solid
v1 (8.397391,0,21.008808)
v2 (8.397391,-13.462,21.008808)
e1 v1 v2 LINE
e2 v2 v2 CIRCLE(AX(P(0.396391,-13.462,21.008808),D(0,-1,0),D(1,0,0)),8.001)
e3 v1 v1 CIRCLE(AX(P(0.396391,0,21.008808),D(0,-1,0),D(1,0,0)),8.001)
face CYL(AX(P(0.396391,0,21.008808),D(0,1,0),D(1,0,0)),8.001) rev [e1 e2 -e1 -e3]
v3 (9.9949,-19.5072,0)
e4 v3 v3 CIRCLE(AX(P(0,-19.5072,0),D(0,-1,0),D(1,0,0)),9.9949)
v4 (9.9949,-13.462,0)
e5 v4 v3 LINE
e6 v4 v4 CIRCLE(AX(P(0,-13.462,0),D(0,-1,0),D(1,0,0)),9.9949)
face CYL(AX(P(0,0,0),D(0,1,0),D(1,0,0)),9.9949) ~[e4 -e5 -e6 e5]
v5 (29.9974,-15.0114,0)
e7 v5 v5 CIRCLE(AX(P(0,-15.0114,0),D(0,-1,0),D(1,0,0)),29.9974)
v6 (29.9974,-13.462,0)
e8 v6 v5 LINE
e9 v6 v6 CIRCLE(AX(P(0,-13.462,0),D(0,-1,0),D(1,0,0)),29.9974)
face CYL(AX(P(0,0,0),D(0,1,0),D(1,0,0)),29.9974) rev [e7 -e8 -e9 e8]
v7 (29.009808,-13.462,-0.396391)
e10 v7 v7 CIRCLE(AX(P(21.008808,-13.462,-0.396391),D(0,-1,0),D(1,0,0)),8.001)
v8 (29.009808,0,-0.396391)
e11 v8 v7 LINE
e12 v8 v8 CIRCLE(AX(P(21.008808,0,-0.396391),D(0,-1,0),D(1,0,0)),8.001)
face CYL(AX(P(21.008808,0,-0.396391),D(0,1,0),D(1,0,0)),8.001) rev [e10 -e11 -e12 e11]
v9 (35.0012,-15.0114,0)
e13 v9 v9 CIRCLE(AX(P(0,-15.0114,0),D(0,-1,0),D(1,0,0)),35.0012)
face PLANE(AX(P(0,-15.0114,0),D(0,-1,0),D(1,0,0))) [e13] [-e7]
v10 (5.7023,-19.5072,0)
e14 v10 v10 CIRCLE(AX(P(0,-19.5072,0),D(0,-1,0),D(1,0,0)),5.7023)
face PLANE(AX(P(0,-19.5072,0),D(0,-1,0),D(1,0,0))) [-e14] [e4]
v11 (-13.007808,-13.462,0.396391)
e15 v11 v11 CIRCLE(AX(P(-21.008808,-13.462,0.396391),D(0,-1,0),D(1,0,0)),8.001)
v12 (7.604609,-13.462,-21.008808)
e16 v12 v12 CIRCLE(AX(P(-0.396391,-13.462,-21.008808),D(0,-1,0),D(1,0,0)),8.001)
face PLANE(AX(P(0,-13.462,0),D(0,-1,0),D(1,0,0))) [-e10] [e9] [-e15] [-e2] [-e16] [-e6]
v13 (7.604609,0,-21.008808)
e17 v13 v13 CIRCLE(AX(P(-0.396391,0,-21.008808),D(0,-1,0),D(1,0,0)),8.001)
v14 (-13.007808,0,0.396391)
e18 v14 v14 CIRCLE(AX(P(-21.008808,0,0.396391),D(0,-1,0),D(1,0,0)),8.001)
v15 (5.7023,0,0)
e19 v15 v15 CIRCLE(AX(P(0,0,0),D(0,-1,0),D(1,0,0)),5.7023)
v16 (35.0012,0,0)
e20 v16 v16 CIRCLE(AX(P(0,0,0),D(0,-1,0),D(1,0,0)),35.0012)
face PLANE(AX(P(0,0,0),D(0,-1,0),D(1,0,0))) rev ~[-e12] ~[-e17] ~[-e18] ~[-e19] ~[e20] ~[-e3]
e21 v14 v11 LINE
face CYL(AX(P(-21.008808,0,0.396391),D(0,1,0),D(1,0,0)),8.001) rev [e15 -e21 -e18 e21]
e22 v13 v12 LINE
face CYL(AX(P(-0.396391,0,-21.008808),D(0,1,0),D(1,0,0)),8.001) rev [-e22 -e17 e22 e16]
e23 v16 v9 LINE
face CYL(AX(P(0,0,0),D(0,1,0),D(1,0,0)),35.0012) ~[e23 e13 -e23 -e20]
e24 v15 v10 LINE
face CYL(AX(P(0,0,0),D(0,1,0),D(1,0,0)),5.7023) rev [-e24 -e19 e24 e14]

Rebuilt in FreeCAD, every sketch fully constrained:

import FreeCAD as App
import Part
import Sketcher
Q = App.Units.Quantity

doc = App.newDocument("Part")
body = doc.addObject("PartDesign::Body", "Body")

# Sketch on XZ plane
sketch1 = body.newObject("Sketcher::SketchObject", "Sketch")
sketch1.AttachmentSupport = (doc.getObject("XZ_Plane"), [""])
sketch1.MapMode = "FlatFace"
sketch1.addGeometry([
    Part.Circle(App.Vector(0, 0, 0), App.Vector(0, 0, 1), 9.9949),
    Part.Circle(App.Vector(0, 0, 0), App.Vector(0, 0, 1), 5.7023),
], False)
sketch1.addConstraint([
    Sketcher.Constraint("Coincident", 0, 3, -1, 1),
    Sketcher.Constraint("Coincident", 1, 3, -1, 1),
    Sketcher.Constraint("Diameter", 0, Q("0.787 in")),
    Sketcher.Constraint("Diameter", 1, Q("0.449 in")),
])
pad1 = body.newObject("PartDesign::Pad", "Pad")
pad1.Profile = sketch1
pad1.Length = Q("0.768 in")

# Sketch on XZ plane
sketch2 = body.newObject("Sketcher::SketchObject", "Sketch001")
sketch2.AttachmentSupport = (doc.getObject("XZ_Plane"), [""])
sketch2.MapMode = "FlatFace"
sketch2.addGeometry([
    Part.Circle(App.Vector(0, 0, 0), App.Vector(0, 0, 1), 29.9974),  # 0
    Part.Circle(App.Vector(-0.396391, -21.008808, 0), App.Vector(0, 0, 1), 8.001),  # 1
    Part.Circle(App.Vector(21.008808, -0.396391, 0), App.Vector(0, 0, 1), 8.001),  # 2
    Part.Circle(App.Vector(-21.008808, 0.396391, 0), App.Vector(0, 0, 1), 8.001),  # 3
    Part.Circle(App.Vector(0, 0, 0), App.Vector(0, 0, 1), 9.9949),  # 4
    Part.Circle(App.Vector(0.396391, 21.008808, 0), App.Vector(0, 0, 1), 8.001),  # 5
], False)
sketch2.addConstraint([
    Sketcher.Constraint("Coincident", 0, 3, -1, 1),
    Sketcher.Constraint("Coincident", 4, 3, -1, 1),
    Sketcher.Constraint("Equal", 1, 2),
    Sketcher.Constraint("Equal", 2, 3),
    Sketcher.Constraint("Equal", 3, 5),
    Sketcher.Constraint("Symmetric", 2, 3, 3, 3, -1, 1),
    Sketcher.Constraint("Symmetric", 1, 3, 5, 3, -1, 1),
    Sketcher.Constraint("Diameter", 1, Q("0.63 in")),
    Sketcher.Constraint("Diameter", 0, Q("2.362 in")),
    Sketcher.Constraint("Diameter", 4, Q("0.787 in")),
    Sketcher.Constraint("DistanceX", 1, 3, 2, 3, Q("21.405199 mm")),
    Sketcher.Constraint("DistanceY", 1, 3, 3, 3, Q("21.405199 mm")),
    Sketcher.Constraint("DistanceX", 1, 3, -1, 1, Q("0.396391 mm")),
    Sketcher.Constraint("DistanceY", 2, 3, -1, 1, Q("0.396391 mm")),
])
pad2 = body.newObject("PartDesign::Pad", "Pad001")
pad2.Profile = sketch2
pad2.Length = Q("0.53 in")

# Sketch on XZ plane
sketch3 = body.newObject("Sketcher::SketchObject", "Sketch002")
sketch3.AttachmentSupport = (doc.getObject("XZ_Plane"), [""])
sketch3.MapMode = "FlatFace"
sketch3.addGeometry([
    Part.Circle(App.Vector(0, 0, 0), App.Vector(0, 0, 1), 35.0012),
    Part.Circle(App.Vector(0, 0, 0), App.Vector(0, 0, 1), 29.9974),
], False)
sketch3.addConstraint([
    Sketcher.Constraint("Coincident", 0, 3, -1, 1),
    Sketcher.Constraint("Coincident", 1, 3, -1, 1),
    Sketcher.Constraint("Diameter", 0, Q("2.756 in")),
    Sketcher.Constraint("Diameter", 1, Q("2.362 in")),
])
pad3 = body.newObject("PartDesign::Pad", "Pad002")
pad3.Profile = sketch3
pad3.Length = Q("0.591 in")

doc.recompute()
